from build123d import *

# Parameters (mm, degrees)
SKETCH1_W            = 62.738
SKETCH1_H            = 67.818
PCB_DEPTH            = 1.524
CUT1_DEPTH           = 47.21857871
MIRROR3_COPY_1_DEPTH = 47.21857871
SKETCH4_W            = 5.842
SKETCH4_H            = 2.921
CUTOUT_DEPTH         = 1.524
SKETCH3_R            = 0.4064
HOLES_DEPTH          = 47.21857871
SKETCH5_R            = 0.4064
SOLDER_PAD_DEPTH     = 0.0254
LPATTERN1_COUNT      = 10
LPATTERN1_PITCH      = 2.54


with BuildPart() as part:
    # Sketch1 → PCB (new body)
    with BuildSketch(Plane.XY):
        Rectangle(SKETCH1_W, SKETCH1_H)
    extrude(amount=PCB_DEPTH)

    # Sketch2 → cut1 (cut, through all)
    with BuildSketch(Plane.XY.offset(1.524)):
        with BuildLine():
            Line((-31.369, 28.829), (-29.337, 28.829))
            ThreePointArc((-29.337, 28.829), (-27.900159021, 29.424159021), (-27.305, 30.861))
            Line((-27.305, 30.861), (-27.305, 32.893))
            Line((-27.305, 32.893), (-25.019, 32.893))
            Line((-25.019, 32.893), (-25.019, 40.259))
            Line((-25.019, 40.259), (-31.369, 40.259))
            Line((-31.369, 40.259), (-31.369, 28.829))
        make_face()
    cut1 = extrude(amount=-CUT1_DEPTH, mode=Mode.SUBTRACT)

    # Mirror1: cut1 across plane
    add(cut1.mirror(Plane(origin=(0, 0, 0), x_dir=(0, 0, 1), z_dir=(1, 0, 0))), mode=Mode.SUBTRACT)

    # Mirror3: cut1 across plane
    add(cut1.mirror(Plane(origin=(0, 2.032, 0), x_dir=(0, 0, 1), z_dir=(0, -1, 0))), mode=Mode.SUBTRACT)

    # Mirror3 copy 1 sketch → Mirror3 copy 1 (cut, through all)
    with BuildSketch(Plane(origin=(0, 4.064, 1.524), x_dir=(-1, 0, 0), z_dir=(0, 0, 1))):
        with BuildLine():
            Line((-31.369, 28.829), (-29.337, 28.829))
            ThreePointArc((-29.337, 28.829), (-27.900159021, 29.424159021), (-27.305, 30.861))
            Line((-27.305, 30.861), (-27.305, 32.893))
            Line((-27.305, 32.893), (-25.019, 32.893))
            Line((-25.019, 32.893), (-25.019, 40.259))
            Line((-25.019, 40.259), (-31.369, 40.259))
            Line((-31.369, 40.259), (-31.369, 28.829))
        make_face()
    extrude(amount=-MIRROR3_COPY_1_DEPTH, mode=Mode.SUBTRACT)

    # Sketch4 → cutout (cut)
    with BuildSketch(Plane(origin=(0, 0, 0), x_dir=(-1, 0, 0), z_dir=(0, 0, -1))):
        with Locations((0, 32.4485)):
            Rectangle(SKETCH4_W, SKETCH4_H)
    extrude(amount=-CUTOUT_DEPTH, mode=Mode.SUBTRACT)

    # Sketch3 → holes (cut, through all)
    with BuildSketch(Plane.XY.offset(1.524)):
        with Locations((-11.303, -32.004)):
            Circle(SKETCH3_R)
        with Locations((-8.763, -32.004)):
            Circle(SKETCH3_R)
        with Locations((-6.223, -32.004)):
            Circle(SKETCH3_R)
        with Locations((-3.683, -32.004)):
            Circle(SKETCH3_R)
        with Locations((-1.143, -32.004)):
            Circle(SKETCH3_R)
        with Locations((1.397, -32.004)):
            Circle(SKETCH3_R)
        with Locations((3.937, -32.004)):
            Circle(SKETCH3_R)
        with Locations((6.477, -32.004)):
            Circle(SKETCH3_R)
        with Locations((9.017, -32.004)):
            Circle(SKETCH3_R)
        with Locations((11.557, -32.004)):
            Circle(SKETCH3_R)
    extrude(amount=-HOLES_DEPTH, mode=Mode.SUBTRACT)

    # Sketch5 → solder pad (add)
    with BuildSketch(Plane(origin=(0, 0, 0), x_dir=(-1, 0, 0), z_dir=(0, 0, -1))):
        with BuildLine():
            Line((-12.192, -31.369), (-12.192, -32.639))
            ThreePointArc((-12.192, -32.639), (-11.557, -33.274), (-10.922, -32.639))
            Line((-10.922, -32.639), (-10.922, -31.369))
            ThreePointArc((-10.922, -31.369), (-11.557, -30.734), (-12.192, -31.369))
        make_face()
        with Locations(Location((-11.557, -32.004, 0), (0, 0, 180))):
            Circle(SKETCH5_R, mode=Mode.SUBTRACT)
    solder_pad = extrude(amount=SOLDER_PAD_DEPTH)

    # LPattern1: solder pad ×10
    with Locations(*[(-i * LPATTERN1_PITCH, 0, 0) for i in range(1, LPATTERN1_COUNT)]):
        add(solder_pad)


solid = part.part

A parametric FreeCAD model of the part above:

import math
import FreeCAD as App
import Part
import Sketcher

V = App.Vector
Q = App.Units.Quantity

doc = App.newDocument("Part")
body = doc.addObject("PartDesign::Body", "Body")

# Sketch on XY plane
sketch1 = doc.addObject("Sketcher::SketchObject", "Sketch")
body.addObject(sketch1)
sketch1.AttachmentSupport = (doc.XY_Plane, [""])
sketch1.MapMode = "FlatFace"
sketch1.addGeometry([
    Part.LineSegment(V(-31, 34, 0), V(-31, -34, 0)),
    Part.LineSegment(V(-31, -34, 0), V(31, -34, 0)),
    Part.LineSegment(V(31, -34, 0), V(31, 34, 0)),
    Part.LineSegment(V(31, 34, 0), V(-31, 34, 0)),
], False)
sketch1.addConstraint([
    Sketcher.Constraint("Coincident", 0, 2, 1, 1),
    Sketcher.Constraint("Coincident", 1, 2, 2, 1),
    Sketcher.Constraint("Coincident", 2, 2, 3, 1),
    Sketcher.Constraint("Coincident", 3, 2, 0, 1),
    Sketcher.Constraint("Vertical", 0),
    Sketcher.Constraint("Horizontal", 1),
    Sketcher.Constraint("Vertical", 2),
    Sketcher.Constraint("Horizontal", 3),
    Sketcher.Constraint("Symmetric", 0, 2, 2, 2, -1, 1),
    Sketcher.Constraint("DistanceX", 1, 1, 1, 2, Q("2.47 in")),
    Sketcher.Constraint("DistanceY", 0, 2, 0, 1, Q("2.67 in")),
])
pad1 = doc.addObject("PartDesign::Pad", "Pad")
body.addObject(pad1)
pad1.Profile = sketch1
pad1.Length = Q("0.06 in")

# Sketch on XY plane
sketch2 = doc.addObject("Sketcher::SketchObject", "Sketch001")
body.addObject(sketch2)
sketch2.AttachmentSupport = (doc.XY_Plane, [""])
sketch2.MapMode = "FlatFace"
sketch2.AttachmentOffset = App.Placement(V(0, 0, 0.06 * 25.4), App.Rotation())
sketch2.addGeometry([
    Part.LineSegment(V(-31.4, 28.8, 0), V(-29.3, 28.8, 0)),  # 0
    Part.ArcOfCircle(Part.Circle(V(-29.3, 30.9, 0), V(0, 0, 1), 2), math.radians(-90), math.radians(0)),  # 1
    Part.LineSegment(V(-27.3, 30.9, 0), V(-27.3, 32.9, 0)),  # 2
    Part.LineSegment(V(-27.3, 32.9, 0), V(-25, 32.9, 0)),  # 3
    Part.LineSegment(V(-25, 32.9, 0), V(-25, 40.3, 0)),  # 4
    Part.LineSegment(V(-25, 40.3, 0), V(-31.4, 40.3, 0)),  # 5
    Part.LineSegment(V(-31.4, 40.3, 0), V(-31.4, 28.8, 0)),  # 6
], False)
sketch2.addConstraint([
    Sketcher.Constraint("Tangent", 0, 2, 1, 1),
    Sketcher.Constraint("Tangent", 1, 2, 2, 1),
    Sketcher.Constraint("Coincident", 2, 2, 3, 1),
    Sketcher.Constraint("Coincident", 3, 2, 4, 1),
    Sketcher.Constraint("Coincident", 4, 2, 5, 1),
    Sketcher.Constraint("Coincident", 5, 2, 6, 1),
    Sketcher.Constraint("Coincident", 6, 2, 0, 1),
    Sketcher.Constraint("Horizontal", 0),
    Sketcher.Constraint("Vertical", 2),
    Sketcher.Constraint("Horizontal", 3),
    Sketcher.Constraint("Vertical", 4),
    Sketcher.Constraint("Horizontal", 5),
    Sketcher.Constraint("Vertical", 6),
    Sketcher.Constraint("Equal", 0, 2),
    Sketcher.Constraint("Radius", 1, Q("0.08 in")),
    Sketcher.Constraint("DistanceX", 0, 1, 0, 2, Q("0.08 in")),
    Sketcher.Constraint("DistanceX", 3, 1, 3, 2, Q("0.09 in")),
    Sketcher.Constraint("DistanceY", 4, 1, 4, 2, Q("0.29 in")),
    Sketcher.Constraint("DistanceX", 1, 3, -1, 1, Q("1.155 in")),
    Sketcher.Constraint("DistanceY", -1, 1, 1, 3, Q("1.215 in")),
])
pocket1 = doc.addObject("PartDesign::Pocket", "Pocket")
body.addObject(pocket1)
pocket1.Profile = sketch2
pocket1.Type = "ThroughAll"
doc.recompute()

mirrored = doc.addObject("PartDesign::Mirrored", "Mirrored")
body.addObject(mirrored)
mirrored.Originals = [pocket1]
mirrored.MirrorPlane = (doc.YZ_Plane, [""])
body.Tip = mirrored
doc.recompute()

datumplane = doc.addObject("PartDesign::Plane", "DatumPlane")
body.addObject(datumplane)
datumplane.AttachmentSupport = (doc.XZ_Plane, [""])
datumplane.MapMode = "FlatFace"
datumplane.AttachmentOffset = App.Placement(V(0, 0, -0.08 * 25.4), App.Rotation())
mirrored2 = doc.addObject("PartDesign::Mirrored", "Mirrored001")
body.addObject(mirrored2)
mirrored2.Originals = [pocket1]
mirrored2.MirrorPlane = (datumplane, [""])
body.Tip = mirrored2

# Sketch on XY plane
sketch3 = doc.addObject("Sketcher::SketchObject", "Sketch002")
body.addObject(sketch3)
sketch3.AttachmentSupport = (doc.XY_Plane, [""])
sketch3.MapMode = "FlatFace"
sketch3.AttachmentOffset = App.Placement(V(0, 0, 0.06 * 25.4), App.Rotation())
sketch3.addGeometry([
    Part.LineSegment(V(31.4, -24.8, 0), V(29.3, -24.8, 0)),  # 0
    Part.ArcOfCircle(Part.Circle(V(29.3, -26.8, 0), V(0, 0, 1), 2), math.radians(90), math.radians(180)),  # 1
    Part.LineSegment(V(27.3, -26.8, 0), V(27.3, -28.8, 0)),  # 2
    Part.LineSegment(V(27.3, -28.8, 0), V(25, -28.8, 0)),  # 3
    Part.LineSegment(V(25, -28.8, 0), V(25, -36.2, 0)),  # 4
    Part.LineSegment(V(25, -36.2, 0), V(31.4, -36.2, 0)),  # 5
    Part.LineSegment(V(31.4, -36.2, 0), V(31.4, -24.8, 0)),  # 6
], False)
sketch3.addConstraint([
    Sketcher.Constraint("Tangent", 0, 2, 1, 1),
    Sketcher.Constraint("Tangent", 1, 2, 2, 1),
    Sketcher.Constraint("Coincident", 2, 2, 3, 1),
    Sketcher.Constraint("Coincident", 3, 2, 4, 1),
    Sketcher.Constraint("Coincident", 4, 2, 5, 1),
    Sketcher.Constraint("Coincident", 5, 2, 6, 1),
    Sketcher.Constraint("Coincident", 6, 2, 0, 1),
    Sketcher.Constraint("Horizontal", 0),
    Sketcher.Constraint("Vertical", 2),
    Sketcher.Constraint("Horizontal", 3),
    Sketcher.Constraint("Vertical", 4),
    Sketcher.Constraint("Horizontal", 5),
    Sketcher.Constraint("Vertical", 6),
    Sketcher.Constraint("Equal", 0, 2),
    Sketcher.Constraint("Radius", 1, Q("0.08 in")),
    Sketcher.Constraint("DistanceX", 0, 2, 0, 1, Q("0.08 in")),
    Sketcher.Constraint("DistanceX", 3, 2, 3, 1, Q("0.09 in")),
    Sketcher.Constraint("DistanceY", 4, 2, 4, 1, Q("0.29 in")),
    Sketcher.Constraint("DistanceX", -1, 1, 1, 3, Q("1.155 in")),
    Sketcher.Constraint("DistanceY", 1, 3, -1, 1, Q("1.055 in")),
])
pocket2 = doc.addObject("PartDesign::Pocket", "Pocket001")
body.addObject(pocket2)
pocket2.Profile = sketch3
pocket2.Type = "ThroughAll"

# Sketch on XY plane
sketch4 = doc.addObject("Sketcher::SketchObject", "Sketch003")
body.addObject(sketch4)
sketch4.AttachmentSupport = (doc.XY_Plane, [""])
sketch4.MapMode = "FlatFace"
sketch4.addGeometry([
    Part.LineSegment(V(2.9, 33.9, 0), V(2.9, 31, 0)),
    Part.LineSegment(V(2.9, 31, 0), V(-2.9, 31, 0)),
    Part.LineSegment(V(-2.9, 31, 0), V(-2.9, 33.9, 0)),
    Part.LineSegment(V(-2.9, 33.9, 0), V(2.9, 33.9, 0)),
], False)
sketch4.addConstraint([
    Sketcher.Constraint("Coincident", 0, 2, 1, 1),
    Sketcher.Constraint("Coincident", 1, 2, 2, 1),
    Sketcher.Constraint("Coincident", 2, 2, 3, 1),
    Sketcher.Constraint("Coincident", 3, 2, 0, 1),
    Sketcher.Constraint("Vertical", 0),
    Sketcher.Constraint("Horizontal", 1),
    Sketcher.Constraint("Vertical", 2),
    Sketcher.Constraint("Horizontal", 3),
    Sketcher.Constraint("DistanceX", 1, 2, 1, 1, Q("0.23 in")),
    Sketcher.Constraint("DistanceY", 0, 2, 0, 1, Q("0.115 in")),
    Sketcher.Constraint("DistanceY", -1, 1, 0, 2, Q("1.22 in")),
    Sketcher.Constraint("DistanceX", -1, 1, 0, 2, Q("0.115 in")),
])
pocket3 = doc.addObject("PartDesign::Pocket", "Pocket002")
body.addObject(pocket3)
pocket3.Profile = sketch4
pocket3.Length = Q("0.06 in")
pocket3.Reversed = True

# Sketch on XY plane
sketch5 = doc.addObject("Sketcher::SketchObject", "Sketch004")
body.addObject(sketch5)
sketch5.AttachmentSupport = (doc.XY_Plane, [""])
sketch5.MapMode = "FlatFace"
sketch5.AttachmentOffset = App.Placement(V(0, 0, 0.06 * 25.4), App.Rotation())
sketch5.addGeometry([
    Part.Circle(V(-11.3, -32, 0), V(0, 0, 1), 0.41),  # 0
    Part.Circle(V(-8.76, -32, 0), V(0, 0, 1), 0.41),  # 1
    Part.Circle(V(-6.22, -32, 0), V(0, 0, 1), 0.41),  # 2
    Part.Circle(V(-3.68, -32, 0), V(0, 0, 1), 0.41),  # 3
    Part.Circle(V(-1.14, -32, 0), V(0, 0, 1), 0.41),  # 4
    Part.Circle(V(1.4, -32, 0), V(0, 0, 1), 0.41),  # 5
    Part.Circle(V(3.94, -32, 0), V(0, 0, 1), 0.41),  # 6
    Part.Circle(V(6.48, -32, 0), V(0, 0, 1), 0.41),  # 7
    Part.Circle(V(9.02, -32, 0), V(0, 0, 1), 0.41),  # 8
    Part.Circle(V(11.56, -32, 0), V(0, 0, 1), 0.41),  # 9
], False)
sketch5.addConstraint([
    Sketcher.Constraint("Equal", 0, 1),
    Sketcher.Constraint("Equal", 1, 2),
    Sketcher.Constraint("Equal", 2, 3),
    Sketcher.Constraint("Equal", 3, 4),
    Sketcher.Constraint("Equal", 4, 5),
    Sketcher.Constraint("Equal", 5, 6),
    Sketcher.Constraint("Equal", 6, 7),
    Sketcher.Constraint("Equal", 7, 8),
    Sketcher.Constraint("Equal", 8, 9),
    Sketcher.Constraint("Horizontal", 0, 3, 1, 3),
    Sketcher.Constraint("Horizontal", 1, 3, 2, 3),
    Sketcher.Constraint("Horizontal", 2, 3, 3, 3),
    Sketcher.Constraint("Horizontal", 3, 3, 4, 3),
    Sketcher.Constraint("Horizontal", 4, 3, 5, 3),
    Sketcher.Constraint("Horizontal", 5, 3, 6, 3),
    Sketcher.Constraint("Horizontal", 6, 3, 7, 3),
    Sketcher.Constraint("Horizontal", 7, 3, 8, 3),
    Sketcher.Constraint("Horizontal", 8, 3, 9, 3),
    Sketcher.Constraint("Diameter", 0, Q("0.032 in")),
    Sketcher.Constraint("DistanceX", 0, 3, 1, 3, Q("0.1 in")),
    Sketcher.Constraint("DistanceX", 1, 3, 2, 3, Q("0.1 in")),
    Sketcher.Constraint("DistanceX", 2, 3, 3, 3, Q("0.1 in")),
    Sketcher.Constraint("DistanceX", 3, 3, 4, 3, Q("0.1 in")),
    Sketcher.Constraint("DistanceX", 4, 3, 5, 3, Q("0.1 in")),
    Sketcher.Constraint("DistanceX", 5, 3, 6, 3, Q("0.1 in")),
    Sketcher.Constraint("DistanceX", 6, 3, 7, 3, Q("0.1 in")),
    Sketcher.Constraint("DistanceX", 7, 3, 8, 3, Q("0.1 in")),
    Sketcher.Constraint("DistanceX", 8, 3, 9, 3, Q("0.1 in")),
    Sketcher.Constraint("DistanceY", 0, 3, -1, 1, Q("1.26 in")),
    Sketcher.Constraint("DistanceX", 0, 3, -1, 1, Q("0.445 in")),
])
pocket4 = doc.addObject("PartDesign::Pocket", "Pocket003")
body.addObject(pocket4)
pocket4.Profile = sketch5
pocket4.Type = "ThroughAll"

# Sketch on XY plane
sketch6 = doc.addObject("Sketcher::SketchObject", "Sketch005")
body.addObject(sketch6)
sketch6.AttachmentSupport = (doc.XY_Plane, [""])
sketch6.MapMode = "FlatFace"
sketch6.addGeometry([
    Part.LineSegment(V(12.19, -31.37, 0), V(12.19, -32.64, 0)),  # 0
    Part.ArcOfCircle(Part.Circle(V(11.56, -32.64, 0), V(0, 0, 1), 0.64), math.radians(180), math.radians(360)),  # 1
    Part.LineSegment(V(10.92, -32.64, 0), V(10.92, -31.37, 0)),  # 2
    Part.ArcOfCircle(Part.Circle(V(11.56, -31.37, 0), V(0, 0, 1), 0.64), math.radians(0), math.radians(180)),  # 3
    Part.Circle(V(11.56, -32, 0), V(0, 0, 1), 0.41),  # 4
], False)
sketch6.addConstraint([
    Sketcher.Constraint("Tangent", 0, 2, 1, 2),
    Sketcher.Constraint("Tangent", 1, 1, 2, 1),
    Sketcher.Constraint("Tangent", 2, 2, 3, 2),
    Sketcher.Constraint("Tangent", 3, 1, 0, 1),
    Sketcher.Constraint("Vertical", 0),
    Sketcher.Constraint("Vertical", 2),
    Sketcher.Constraint("Vertical", 3, 3, 4, 3),
    Sketcher.Constraint("Diameter", 4, Q("0.032 in")),
    Sketcher.Constraint("Radius", 1, Q("0.025 in")),
    Sketcher.Constraint("DistanceY", 0, 2, 0, 1, Q("0.05 in")),
    Sketcher.Constraint("DistanceY", 4, 3, -1, 1, Q("1.26 in")),
    Sketcher.Constraint("DistanceX", -1, 1, 0, 2, Q("0.48 in")),
    Sketcher.Constraint("DistanceY", 1, 3, -1, 1, Q("1.285 in")),
])
pad2 = doc.addObject("PartDesign::Pad", "Pad001")
body.addObject(pad2)
pad2.Profile = sketch6
pad2.Length = Q("0.001 in")
pad2.Reversed = True
doc.recompute()

linearpattern = doc.addObject("PartDesign::LinearPattern", "LinearPattern")
body.addObject(linearpattern)
linearpattern.Originals = [pad2]
linearpattern.Direction = (doc.X_Axis, [""])
linearpattern.Mode = "offset"
linearpattern.Offset = Q("0.1 in")
linearpattern.Occurrences = 10
linearpattern.Reversed = True
body.Tip = linearpattern

doc.recompute()
